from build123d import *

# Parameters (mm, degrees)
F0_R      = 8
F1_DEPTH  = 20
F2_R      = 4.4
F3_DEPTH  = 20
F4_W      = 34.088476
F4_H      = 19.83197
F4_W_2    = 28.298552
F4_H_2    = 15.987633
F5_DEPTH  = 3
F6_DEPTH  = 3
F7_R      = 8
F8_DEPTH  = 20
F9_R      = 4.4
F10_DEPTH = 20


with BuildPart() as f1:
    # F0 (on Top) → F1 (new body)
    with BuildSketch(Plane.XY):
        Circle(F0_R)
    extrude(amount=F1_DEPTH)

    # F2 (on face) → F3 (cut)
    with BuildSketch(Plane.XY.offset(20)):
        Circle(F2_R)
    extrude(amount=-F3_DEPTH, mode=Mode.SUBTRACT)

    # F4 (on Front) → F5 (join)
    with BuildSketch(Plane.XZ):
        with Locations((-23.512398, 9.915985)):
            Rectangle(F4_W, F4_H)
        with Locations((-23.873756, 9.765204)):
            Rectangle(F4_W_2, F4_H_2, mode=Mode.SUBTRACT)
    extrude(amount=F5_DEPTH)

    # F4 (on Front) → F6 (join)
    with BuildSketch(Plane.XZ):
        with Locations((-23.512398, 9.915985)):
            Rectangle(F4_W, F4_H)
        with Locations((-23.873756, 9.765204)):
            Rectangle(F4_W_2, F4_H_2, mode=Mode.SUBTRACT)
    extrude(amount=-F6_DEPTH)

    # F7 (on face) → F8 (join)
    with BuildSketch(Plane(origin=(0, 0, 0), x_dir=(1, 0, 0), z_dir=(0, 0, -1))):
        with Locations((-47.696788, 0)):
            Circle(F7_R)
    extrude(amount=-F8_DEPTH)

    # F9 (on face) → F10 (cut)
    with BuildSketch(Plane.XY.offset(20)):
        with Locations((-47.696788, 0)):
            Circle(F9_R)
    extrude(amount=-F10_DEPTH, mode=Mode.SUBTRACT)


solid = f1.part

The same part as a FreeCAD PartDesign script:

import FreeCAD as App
import Part
import Sketcher

V = App.Vector
Q = App.Units.Quantity

doc = App.newDocument("Part")
body = doc.addObject("PartDesign::Body", "Body")

sketch1 = body.newObject("Sketcher::SketchObject", "Sketch")
sketch1.AttachmentSupport = (doc.getObject("XY_Plane"), [""])
sketch1.MapMode = "FlatFace"
sketch1.addGeometry(Part.Circle(V(0, 0, 0), V(0, 0, 1), 8), False)
sketch1.addConstraint([
    Sketcher.Constraint("Coincident", 0, 3, -1, 1),
    Sketcher.Constraint("Diameter", 0, Q("16 mm")),
])
pad1 = body.newObject("PartDesign::Pad", "Pad")
pad1.Profile = sketch1
pad1.Length = 20

sketch2 = body.newObject("Sketcher::SketchObject", "Sketch001")
sketch2.AttachmentSupport = (doc.getObject("XY_Plane"), [""])
sketch2.MapMode = "FlatFace"
sketch2.AttachmentOffset = App.Placement(V(0, 0, 20), App.Rotation())
sketch2.addGeometry(Part.Circle(V(0, 0, 0), V(0, 0, 1), 4.4), False)
sketch2.addConstraint([
    Sketcher.Constraint("Coincident", 0, 3, -1, 1),
    Sketcher.Constraint("Diameter", 0, Q("8.8 mm")),
])
pocket1 = body.newObject("PartDesign::Pocket", "Pocket")
pocket1.Profile = sketch2
pocket1.Length = 20

sketch3 = body.newObject("Sketcher::SketchObject", "Sketch002")
sketch3.AttachmentSupport = (doc.getObject("XZ_Plane"), [""])
sketch3.MapMode = "FlatFace"
sketch3.addGeometry([
    Part.LineSegment(V(-41, 20, 0), V(-41, 0, 0)),
    Part.LineSegment(V(-41, 0, 0), V(-6, 0, 0)),
    Part.LineSegment(V(-6, 0, 0), V(-6, 20, 0)),
    Part.LineSegment(V(-6, 20, 0), V(-41, 20, 0)),
    Part.LineSegment(V(-10, 2, 0), V(-38, 2, 0)),
    Part.LineSegment(V(-38, 2, 0), V(-38, 18, 0)),
    Part.LineSegment(V(-38, 18, 0), V(-10, 18, 0)),
    Part.LineSegment(V(-10, 18, 0), V(-10, 2, 0)),
], False)
sketch3.addConstraint([
    Sketcher.Constraint("Coincident", 0, 2, 1, 1),
    Sketcher.Constraint("Coincident", 1, 2, 2, 1),
    Sketcher.Constraint("Coincident", 2, 2, 3, 1),
    Sketcher.Constraint("Coincident", 3, 2, 0, 1),
    Sketcher.Constraint("Coincident", 4, 2, 5, 1),
    Sketcher.Constraint("Coincident", 5, 2, 6, 1),
    Sketcher.Constraint("Coincident", 6, 2, 7, 1),
    Sketcher.Constraint("Coincident", 7, 2, 4, 1),
    Sketcher.Constraint("Vertical", 0),
    Sketcher.Constraint("Horizontal", 1),
    Sketcher.Constraint("Vertical", 2),
    Sketcher.Constraint("Horizontal", 3),
    Sketcher.Constraint("Horizontal", 4),
    Sketcher.Constraint("Vertical", 5),
    Sketcher.Constraint("Horizontal", 6),
    Sketcher.Constraint("Vertical", 7),
    Sketcher.Constraint("PointOnObject", 0, 2, -1),
    Sketcher.Constraint("DistanceY", 0, 2, 0, 1, Q("19.83197 mm")),
    Sketcher.Constraint("DistanceX", 1, 1, 1, 2, Q("34.088476 mm")),
    Sketcher.Constraint("DistanceX", 4, 2, 4, 1, Q("28.298552 mm")),
    Sketcher.Constraint("DistanceY", 5, 1, 5, 2, Q("15.987633 mm")),
    Sketcher.Constraint("DistanceX", 1, 2, -1, 1, Q("6.46816 mm")),
    Sketcher.Constraint("DistanceY", -1, 1, 5, 2, Q("17.75902 mm")),
    Sketcher.Constraint("DistanceX", 6, 2, -1, 1, Q("9.72448 mm")),
])
pad2 = body.newObject("PartDesign::Pad", "Pad001")
pad2.Profile = sketch3
pad2.Length = 3

sketch4 = body.newObject("Sketcher::SketchObject", "Sketch003")
sketch4.AttachmentSupport = (doc.getObject("XZ_Plane"), [""])
sketch4.MapMode = "FlatFace"
sketch4.addGeometry([
    Part.LineSegment(V(-41, 20, 0), V(-41, 0, 0)),
    Part.LineSegment(V(-41, 0, 0), V(-6, 0, 0)),
    Part.LineSegment(V(-6, 0, 0), V(-6, 20, 0)),
    Part.LineSegment(V(-6, 20, 0), V(-41, 20, 0)),
    Part.LineSegment(V(-10, 2, 0), V(-38, 2, 0)),
    Part.LineSegment(V(-38, 2, 0), V(-38, 18, 0)),
    Part.LineSegment(V(-38, 18, 0), V(-10, 18, 0)),
    Part.LineSegment(V(-10, 18, 0), V(-10, 2, 0)),
], False)
sketch4.addConstraint([
    Sketcher.Constraint("Coincident", 0, 2, 1, 1),
    Sketcher.Constraint("Coincident", 1, 2, 2, 1),
    Sketcher.Constraint("Coincident", 2, 2, 3, 1),
    Sketcher.Constraint("Coincident", 3, 2, 0, 1),
    Sketcher.Constraint("Coincident", 4, 2, 5, 1),
    Sketcher.Constraint("Coincident", 5, 2, 6, 1),
    Sketcher.Constraint("Coincident", 6, 2, 7, 1),
    Sketcher.Constraint("Coincident", 7, 2, 4, 1),
    Sketcher.Constraint("Vertical", 0),
    Sketcher.Constraint("Horizontal", 1),
    Sketcher.Constraint("Vertical", 2),
    Sketcher.Constraint("Horizontal", 3),
    Sketcher.Constraint("Horizontal", 4),
    Sketcher.Constraint("Vertical", 5),
    Sketcher.Constraint("Horizontal", 6),
    Sketcher.Constraint("Vertical", 7),
    Sketcher.Constraint("PointOnObject", 0, 2, -1),
    Sketcher.Constraint("DistanceY", 0, 2, 0, 1, Q("19.83197 mm")),
    Sketcher.Constraint("DistanceX", 1, 1, 1, 2, Q("34.088476 mm")),
    Sketcher.Constraint("DistanceX", 4, 2, 4, 1, Q("28.298552 mm")),
    Sketcher.Constraint("DistanceY", 5, 1, 5, 2, Q("15.987633 mm")),
    Sketcher.Constraint("DistanceX", 1, 2, -1, 1, Q("6.46816 mm")),
    Sketcher.Constraint("DistanceY", -1, 1, 5, 2, Q("17.75902 mm")),
    Sketcher.Constraint("DistanceX", 6, 2, -1, 1, Q("9.72448 mm")),
])
pad3 = body.newObject("PartDesign::Pad", "Pad002")
pad3.Profile = sketch4
pad3.Length = 3
pad3.Reversed = True

sketch5 = body.newObject("Sketcher::SketchObject", "Sketch004")
sketch5.AttachmentSupport = (doc.getObject("XY_Plane"), [""])
sketch5.MapMode = "FlatFace"
sketch5.addGeometry(Part.Circle(V(-48, 0, 0), V(0, 0, 1), 8), False)
sketch5.addConstraint([
    Sketcher.Constraint("PointOnObject", 0, 3, -1),
    Sketcher.Constraint("Diameter", 0, Q("16 mm")),
    Sketcher.Constraint("DistanceX", 0, 3, -1, 1, Q("47.696788 mm")),
])
pad4 = body.newObject("PartDesign::Pad", "Pad003")
pad4.Profile = sketch5
pad4.Length = 20

sketch6 = body.newObject("Sketcher::SketchObject", "Sketch005")
sketch6.AttachmentSupport = (doc.getObject("XY_Plane"), [""])
sketch6.MapMode = "FlatFace"
sketch6.AttachmentOffset = App.Placement(V(0, 0, 20), App.Rotation())
sketch6.addGeometry(Part.Circle(V(-47.7, 0, 0), V(0, 0, 1), 4.4), False)
sketch6.addConstraint([
    Sketcher.Constraint("PointOnObject", 0, 3, -1),
    Sketcher.Constraint("Diameter", 0, Q("8.8 mm")),
    Sketcher.Constraint("DistanceX", 0, 3, -1, 1, Q("47.696788 mm")),
])
pocket2 = body.newObject("PartDesign::Pocket", "Pocket001")
pocket2.Profile = sketch6
pocket2.Length = 20

doc.recompute()
